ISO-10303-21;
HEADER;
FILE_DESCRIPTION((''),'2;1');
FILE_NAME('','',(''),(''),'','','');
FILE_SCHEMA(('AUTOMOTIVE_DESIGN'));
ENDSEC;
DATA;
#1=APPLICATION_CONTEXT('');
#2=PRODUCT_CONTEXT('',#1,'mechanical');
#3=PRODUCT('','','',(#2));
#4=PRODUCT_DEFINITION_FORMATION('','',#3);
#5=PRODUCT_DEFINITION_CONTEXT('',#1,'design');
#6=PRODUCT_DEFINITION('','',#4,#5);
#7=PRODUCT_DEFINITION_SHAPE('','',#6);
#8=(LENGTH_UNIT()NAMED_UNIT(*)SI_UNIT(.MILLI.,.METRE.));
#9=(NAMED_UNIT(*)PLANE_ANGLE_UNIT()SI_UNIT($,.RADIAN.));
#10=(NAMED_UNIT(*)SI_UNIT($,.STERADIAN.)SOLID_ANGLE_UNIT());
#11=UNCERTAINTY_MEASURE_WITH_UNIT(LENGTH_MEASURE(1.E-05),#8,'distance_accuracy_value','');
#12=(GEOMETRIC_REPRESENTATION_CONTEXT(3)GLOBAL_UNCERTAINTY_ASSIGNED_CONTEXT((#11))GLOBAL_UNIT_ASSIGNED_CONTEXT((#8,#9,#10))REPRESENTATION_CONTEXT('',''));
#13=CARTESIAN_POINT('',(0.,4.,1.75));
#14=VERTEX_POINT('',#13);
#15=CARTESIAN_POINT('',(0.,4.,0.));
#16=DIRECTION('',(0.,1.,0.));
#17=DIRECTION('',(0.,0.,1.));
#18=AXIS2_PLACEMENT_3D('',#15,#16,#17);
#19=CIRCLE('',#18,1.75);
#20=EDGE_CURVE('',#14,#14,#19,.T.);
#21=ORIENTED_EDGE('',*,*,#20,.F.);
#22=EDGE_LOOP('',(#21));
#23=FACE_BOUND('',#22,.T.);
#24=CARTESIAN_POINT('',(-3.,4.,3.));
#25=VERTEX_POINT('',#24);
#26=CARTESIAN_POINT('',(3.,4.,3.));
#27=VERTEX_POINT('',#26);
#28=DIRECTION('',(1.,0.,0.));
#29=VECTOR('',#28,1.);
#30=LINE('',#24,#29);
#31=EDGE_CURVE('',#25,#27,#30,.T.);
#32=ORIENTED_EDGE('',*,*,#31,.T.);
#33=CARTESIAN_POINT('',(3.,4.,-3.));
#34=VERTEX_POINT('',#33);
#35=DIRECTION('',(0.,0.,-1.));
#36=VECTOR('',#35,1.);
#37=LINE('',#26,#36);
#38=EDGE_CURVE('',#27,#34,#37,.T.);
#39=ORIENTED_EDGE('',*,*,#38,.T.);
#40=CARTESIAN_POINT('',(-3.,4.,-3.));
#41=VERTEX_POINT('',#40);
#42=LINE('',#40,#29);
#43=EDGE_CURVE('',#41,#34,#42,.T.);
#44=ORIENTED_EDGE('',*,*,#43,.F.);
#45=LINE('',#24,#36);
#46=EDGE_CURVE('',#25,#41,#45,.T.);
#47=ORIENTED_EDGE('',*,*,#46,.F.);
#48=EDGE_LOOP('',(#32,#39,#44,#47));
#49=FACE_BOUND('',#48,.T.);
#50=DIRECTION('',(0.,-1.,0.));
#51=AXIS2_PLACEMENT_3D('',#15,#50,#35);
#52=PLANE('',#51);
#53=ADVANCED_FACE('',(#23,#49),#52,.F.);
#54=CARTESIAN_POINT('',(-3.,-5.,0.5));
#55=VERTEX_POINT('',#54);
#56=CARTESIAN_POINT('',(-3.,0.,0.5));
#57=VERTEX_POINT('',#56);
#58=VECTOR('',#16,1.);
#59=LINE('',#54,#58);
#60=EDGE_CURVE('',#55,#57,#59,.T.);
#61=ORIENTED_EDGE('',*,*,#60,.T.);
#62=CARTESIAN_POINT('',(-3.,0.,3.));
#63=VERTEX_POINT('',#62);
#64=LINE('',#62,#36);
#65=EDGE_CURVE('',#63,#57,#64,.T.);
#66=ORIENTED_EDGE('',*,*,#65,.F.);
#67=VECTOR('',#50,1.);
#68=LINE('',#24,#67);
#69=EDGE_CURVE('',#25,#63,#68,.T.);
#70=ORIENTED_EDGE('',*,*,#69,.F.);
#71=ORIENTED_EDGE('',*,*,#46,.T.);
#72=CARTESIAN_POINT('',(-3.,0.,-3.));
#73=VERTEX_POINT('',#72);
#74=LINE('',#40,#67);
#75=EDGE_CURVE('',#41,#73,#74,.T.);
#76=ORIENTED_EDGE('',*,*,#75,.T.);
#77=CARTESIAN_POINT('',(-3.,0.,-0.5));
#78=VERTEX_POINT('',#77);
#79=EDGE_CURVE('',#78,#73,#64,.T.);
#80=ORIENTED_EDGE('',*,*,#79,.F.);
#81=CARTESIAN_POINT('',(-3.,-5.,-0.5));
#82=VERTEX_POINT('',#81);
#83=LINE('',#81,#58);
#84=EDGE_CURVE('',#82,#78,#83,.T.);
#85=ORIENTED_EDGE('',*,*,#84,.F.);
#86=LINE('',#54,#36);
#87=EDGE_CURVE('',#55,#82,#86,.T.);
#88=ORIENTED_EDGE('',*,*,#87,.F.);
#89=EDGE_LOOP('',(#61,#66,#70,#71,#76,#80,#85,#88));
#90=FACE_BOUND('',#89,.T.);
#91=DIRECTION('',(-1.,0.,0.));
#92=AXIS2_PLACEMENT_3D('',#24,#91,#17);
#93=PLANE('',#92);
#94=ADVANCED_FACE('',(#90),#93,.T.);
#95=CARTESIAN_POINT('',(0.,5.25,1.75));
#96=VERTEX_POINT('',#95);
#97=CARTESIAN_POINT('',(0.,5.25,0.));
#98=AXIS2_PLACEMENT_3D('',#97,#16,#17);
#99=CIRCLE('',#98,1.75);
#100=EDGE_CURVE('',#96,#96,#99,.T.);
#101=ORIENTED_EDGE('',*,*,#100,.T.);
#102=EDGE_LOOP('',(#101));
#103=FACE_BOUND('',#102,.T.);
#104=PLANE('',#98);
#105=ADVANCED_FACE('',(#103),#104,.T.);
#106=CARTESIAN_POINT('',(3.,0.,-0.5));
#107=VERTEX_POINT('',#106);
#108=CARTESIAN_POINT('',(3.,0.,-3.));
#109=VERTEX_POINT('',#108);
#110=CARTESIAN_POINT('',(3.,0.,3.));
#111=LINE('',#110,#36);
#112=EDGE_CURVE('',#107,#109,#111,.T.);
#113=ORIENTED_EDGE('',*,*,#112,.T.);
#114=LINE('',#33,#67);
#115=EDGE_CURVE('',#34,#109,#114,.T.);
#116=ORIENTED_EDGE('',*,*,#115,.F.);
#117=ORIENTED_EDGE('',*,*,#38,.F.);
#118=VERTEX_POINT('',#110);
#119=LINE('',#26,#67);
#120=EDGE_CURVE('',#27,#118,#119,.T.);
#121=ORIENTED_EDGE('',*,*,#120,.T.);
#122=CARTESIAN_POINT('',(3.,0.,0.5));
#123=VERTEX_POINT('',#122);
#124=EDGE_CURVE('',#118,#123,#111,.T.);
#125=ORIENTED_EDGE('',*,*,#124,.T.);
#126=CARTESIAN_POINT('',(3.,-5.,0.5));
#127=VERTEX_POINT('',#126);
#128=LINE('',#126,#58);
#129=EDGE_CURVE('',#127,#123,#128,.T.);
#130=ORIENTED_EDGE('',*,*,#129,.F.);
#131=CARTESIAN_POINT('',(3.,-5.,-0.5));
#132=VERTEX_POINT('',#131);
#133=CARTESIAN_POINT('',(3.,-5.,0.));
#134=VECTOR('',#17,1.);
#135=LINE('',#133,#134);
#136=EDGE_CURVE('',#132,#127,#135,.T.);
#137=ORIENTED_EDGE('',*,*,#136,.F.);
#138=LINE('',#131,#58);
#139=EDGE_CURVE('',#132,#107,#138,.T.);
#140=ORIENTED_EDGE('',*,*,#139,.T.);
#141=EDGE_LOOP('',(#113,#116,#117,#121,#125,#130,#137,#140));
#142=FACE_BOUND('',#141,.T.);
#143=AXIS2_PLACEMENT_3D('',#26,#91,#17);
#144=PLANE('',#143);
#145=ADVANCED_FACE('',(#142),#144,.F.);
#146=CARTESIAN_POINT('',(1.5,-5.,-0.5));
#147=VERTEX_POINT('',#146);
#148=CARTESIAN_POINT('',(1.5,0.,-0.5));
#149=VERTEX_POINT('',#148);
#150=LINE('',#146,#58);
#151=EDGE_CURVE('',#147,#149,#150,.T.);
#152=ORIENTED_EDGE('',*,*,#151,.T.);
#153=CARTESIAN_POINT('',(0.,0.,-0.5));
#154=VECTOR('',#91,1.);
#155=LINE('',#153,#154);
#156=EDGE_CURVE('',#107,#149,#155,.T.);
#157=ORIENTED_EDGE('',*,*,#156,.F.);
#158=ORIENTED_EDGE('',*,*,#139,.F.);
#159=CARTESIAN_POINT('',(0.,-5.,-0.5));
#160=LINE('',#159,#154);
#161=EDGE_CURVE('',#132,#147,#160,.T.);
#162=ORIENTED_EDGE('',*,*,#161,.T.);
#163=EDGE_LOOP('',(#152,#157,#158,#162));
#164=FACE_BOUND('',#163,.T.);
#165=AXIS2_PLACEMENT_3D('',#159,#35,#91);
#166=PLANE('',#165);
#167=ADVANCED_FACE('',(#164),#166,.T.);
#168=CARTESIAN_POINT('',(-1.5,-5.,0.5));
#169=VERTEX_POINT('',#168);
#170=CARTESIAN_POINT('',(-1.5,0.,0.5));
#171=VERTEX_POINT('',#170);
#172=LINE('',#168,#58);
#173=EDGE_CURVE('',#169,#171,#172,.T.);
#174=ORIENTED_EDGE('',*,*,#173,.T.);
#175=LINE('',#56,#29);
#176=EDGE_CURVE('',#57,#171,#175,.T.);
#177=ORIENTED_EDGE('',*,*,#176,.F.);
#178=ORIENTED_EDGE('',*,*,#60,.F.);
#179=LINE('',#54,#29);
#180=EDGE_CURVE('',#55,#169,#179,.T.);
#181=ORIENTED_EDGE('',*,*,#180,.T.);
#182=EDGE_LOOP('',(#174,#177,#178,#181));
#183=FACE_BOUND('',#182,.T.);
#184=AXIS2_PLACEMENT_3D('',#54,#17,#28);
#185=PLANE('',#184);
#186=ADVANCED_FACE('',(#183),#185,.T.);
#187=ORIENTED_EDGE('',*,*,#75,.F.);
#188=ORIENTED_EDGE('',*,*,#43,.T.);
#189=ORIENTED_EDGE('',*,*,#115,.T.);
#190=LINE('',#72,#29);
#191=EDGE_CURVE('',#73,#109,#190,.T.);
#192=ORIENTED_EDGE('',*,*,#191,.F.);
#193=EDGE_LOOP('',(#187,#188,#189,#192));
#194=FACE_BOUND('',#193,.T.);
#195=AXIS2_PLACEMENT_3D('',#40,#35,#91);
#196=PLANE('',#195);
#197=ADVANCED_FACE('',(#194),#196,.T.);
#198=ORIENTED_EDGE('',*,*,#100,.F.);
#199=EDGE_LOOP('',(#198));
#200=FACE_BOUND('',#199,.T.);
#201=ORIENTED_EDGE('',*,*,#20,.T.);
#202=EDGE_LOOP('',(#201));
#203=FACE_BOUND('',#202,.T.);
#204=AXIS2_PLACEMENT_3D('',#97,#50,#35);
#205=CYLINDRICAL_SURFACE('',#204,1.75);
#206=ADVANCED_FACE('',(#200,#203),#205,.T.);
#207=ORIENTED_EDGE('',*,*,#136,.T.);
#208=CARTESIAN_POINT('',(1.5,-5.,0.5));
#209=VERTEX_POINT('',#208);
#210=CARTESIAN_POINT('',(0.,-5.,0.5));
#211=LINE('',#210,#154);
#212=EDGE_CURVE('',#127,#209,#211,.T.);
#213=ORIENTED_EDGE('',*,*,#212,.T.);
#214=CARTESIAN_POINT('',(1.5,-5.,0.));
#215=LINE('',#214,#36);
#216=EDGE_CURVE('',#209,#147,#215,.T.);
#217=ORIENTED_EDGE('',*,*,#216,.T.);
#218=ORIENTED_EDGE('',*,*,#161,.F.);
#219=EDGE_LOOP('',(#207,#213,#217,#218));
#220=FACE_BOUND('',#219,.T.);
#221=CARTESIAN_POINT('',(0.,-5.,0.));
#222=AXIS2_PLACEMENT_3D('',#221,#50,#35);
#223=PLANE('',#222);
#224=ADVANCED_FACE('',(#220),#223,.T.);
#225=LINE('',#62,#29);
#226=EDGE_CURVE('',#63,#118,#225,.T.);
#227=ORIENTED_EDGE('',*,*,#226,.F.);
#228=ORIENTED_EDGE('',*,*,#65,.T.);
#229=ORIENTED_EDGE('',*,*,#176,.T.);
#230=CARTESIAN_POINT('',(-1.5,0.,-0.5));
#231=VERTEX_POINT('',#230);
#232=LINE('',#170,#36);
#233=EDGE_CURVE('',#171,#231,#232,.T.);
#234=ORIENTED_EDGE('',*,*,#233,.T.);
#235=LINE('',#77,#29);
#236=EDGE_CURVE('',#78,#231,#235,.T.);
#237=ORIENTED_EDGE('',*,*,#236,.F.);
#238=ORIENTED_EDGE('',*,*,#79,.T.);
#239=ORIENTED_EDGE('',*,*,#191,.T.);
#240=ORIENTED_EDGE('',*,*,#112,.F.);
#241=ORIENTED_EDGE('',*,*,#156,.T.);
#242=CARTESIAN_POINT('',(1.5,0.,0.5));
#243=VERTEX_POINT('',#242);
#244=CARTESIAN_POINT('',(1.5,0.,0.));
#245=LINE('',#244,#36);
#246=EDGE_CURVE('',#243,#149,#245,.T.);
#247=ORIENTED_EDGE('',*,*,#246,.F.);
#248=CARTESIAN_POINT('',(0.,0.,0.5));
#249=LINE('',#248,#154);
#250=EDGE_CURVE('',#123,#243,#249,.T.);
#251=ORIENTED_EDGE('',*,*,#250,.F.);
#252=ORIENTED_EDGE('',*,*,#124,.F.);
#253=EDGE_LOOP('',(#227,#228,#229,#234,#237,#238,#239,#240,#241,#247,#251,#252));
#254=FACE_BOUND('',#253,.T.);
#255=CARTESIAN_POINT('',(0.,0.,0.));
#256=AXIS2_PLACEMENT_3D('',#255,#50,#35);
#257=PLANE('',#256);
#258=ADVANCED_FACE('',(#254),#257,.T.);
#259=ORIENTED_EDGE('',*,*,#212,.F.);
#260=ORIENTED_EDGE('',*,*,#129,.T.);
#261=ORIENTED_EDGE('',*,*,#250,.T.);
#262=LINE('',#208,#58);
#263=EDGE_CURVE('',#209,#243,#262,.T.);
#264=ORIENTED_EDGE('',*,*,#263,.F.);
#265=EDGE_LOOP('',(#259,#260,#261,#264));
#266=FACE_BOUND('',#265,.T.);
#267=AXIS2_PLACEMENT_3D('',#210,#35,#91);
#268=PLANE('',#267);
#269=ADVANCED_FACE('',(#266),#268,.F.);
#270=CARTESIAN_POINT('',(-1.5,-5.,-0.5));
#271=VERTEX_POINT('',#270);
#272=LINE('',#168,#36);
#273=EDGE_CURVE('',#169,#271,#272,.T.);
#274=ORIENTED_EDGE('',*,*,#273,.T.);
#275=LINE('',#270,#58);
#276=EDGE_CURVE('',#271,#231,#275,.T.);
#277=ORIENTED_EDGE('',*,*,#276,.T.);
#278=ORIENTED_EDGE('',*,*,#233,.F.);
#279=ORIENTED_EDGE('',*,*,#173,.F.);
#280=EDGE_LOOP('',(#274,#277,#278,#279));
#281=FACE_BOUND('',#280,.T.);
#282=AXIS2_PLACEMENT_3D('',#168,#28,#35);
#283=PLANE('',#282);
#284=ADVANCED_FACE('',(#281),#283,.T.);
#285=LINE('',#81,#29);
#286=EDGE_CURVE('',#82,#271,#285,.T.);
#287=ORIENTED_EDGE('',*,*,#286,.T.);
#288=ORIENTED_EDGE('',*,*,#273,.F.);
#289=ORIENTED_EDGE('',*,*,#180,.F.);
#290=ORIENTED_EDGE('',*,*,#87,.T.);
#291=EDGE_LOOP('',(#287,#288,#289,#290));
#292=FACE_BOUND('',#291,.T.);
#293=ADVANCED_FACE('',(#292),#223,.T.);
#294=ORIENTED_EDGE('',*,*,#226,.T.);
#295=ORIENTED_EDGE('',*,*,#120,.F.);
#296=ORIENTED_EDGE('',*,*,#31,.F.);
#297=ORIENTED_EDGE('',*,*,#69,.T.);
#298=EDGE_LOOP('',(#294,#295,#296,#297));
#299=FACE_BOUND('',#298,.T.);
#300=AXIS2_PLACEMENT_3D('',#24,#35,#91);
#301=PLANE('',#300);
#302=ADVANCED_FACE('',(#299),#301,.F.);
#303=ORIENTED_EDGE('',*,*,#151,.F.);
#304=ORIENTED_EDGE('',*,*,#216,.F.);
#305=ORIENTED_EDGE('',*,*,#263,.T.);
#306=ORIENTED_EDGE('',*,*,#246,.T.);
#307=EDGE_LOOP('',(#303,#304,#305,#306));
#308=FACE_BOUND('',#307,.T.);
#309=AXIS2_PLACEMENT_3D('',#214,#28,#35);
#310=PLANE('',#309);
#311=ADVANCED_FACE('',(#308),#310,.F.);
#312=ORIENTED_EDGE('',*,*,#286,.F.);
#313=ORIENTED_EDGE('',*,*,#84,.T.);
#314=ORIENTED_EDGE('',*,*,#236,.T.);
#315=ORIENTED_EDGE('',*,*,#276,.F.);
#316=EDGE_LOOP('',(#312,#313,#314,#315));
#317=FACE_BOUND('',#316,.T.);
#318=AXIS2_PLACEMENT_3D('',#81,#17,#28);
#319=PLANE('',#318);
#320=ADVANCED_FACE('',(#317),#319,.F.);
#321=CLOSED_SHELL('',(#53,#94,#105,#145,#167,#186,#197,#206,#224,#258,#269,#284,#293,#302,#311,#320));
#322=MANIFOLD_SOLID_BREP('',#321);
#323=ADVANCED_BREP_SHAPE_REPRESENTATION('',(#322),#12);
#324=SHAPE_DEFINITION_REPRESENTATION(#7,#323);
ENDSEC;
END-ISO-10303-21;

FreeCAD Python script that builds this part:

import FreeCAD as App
import Part
import Sketcher
from FreeCAD import Vector


def add_polygon(sketch, points):
    """Adds a closed chain of lines whose ends are joined by coincident constraints."""
    first, n = sketch.GeometryCount, len(points)
    for a, b in zip(points, points[1:] + points[:1]):
        sketch.addGeometry(Part.LineSegment(App.Vector(*a, 0), App.Vector(*b, 0)), False)
    for i in range(n):
        sketch.addConstraint(Sketcher.Constraint("Coincident", first + i, 2, first + (i + 1) % n, 1))

doc = App.newDocument("Part")
params = doc.addObject("Spreadsheet::Sheet", "Params")
for row, (alias, value) in enumerate([
    ("sketch1_width", "6 mm"),
    ("pad1_length", "4 mm"),
    ("sketch2_diameter", "3.5 mm"),
    ("pad2_length", "1.25 mm"),
    ("sketch3_height", "1 mm"),
    ("sketch3_width", "1.5 mm"),
    ("pad3_length", "5 mm"),
], start=1):
    params.set(f"A{row}", alias)
    params.set(f"B{row}", "=" + value)
    params.setAlias(f"B{row}", alias)

body = doc.addObject("PartDesign::Body", "Body")

sketch1 = body.newObject("Sketcher::SketchObject", "Sketch")
sketch1.AttachmentSupport = (doc.getObject("XZ_Plane"), [""])
sketch1.MapMode = "FlatFace"
add_polygon(sketch1, [(-3, -3), (-3, 3), (3, 3), (3, -3)])
sketch1.addConstraint([
    Sketcher.Constraint("Vertical", 0),
    Sketcher.Constraint("Horizontal", 1),
    Sketcher.Constraint("Vertical", 2),
    Sketcher.Constraint("Horizontal", 3),
    Sketcher.Constraint("Symmetric", 0, 2, 2, 2, -1, 1),
    Sketcher.Constraint("Equal", 3, 0),
    Sketcher.Constraint("DistanceX", 1, 1, 1, 2, 6.0),
])
sketch1.setExpression("Constraints[10]", "Params.sketch1_width")
pad1 = body.newObject("PartDesign::Pad", "Pad")
pad1.Profile = sketch1
pad1.setExpression("Length", "Params.pad1_length")
pad1.Reversed = True

sketch2 = body.newObject("Sketcher::SketchObject", "Sketch001")
sketch2.AttachmentSupport = (doc.getObject("XZ_Plane"), [""])
sketch2.MapMode = "FlatFace"
sketch2.AttachmentOffset = App.Placement(Vector(0, 0, -4), App.Rotation())
sketch2.addGeometry(Part.Circle(Vector(0, 0, 0), Vector(0, 0, 1), 1.8), False)
sketch2.addConstraint([
    Sketcher.Constraint("Coincident", 0, 3, -1, 1),
    Sketcher.Constraint("Diameter", 0, 3.5),
])
sketch2.setExpression("Constraints[1]", "Params.sketch2_diameter")
pad2 = body.newObject("PartDesign::Pad", "Pad001")
pad2.Profile = sketch2
pad2.setExpression("Length", "Params.pad2_length")
pad2.Reversed = True

sketch3 = body.newObject("Sketcher::SketchObject", "Sketch002")
sketch3.AttachmentSupport = (doc.getObject("XZ_Plane"), [""])
sketch3.MapMode = "FlatFace"
add_polygon(sketch3, [(1.5, 0.5), (1.5, -0.5), (3, -0.5), (3, 0.5)])
add_polygon(sketch3, [(-3, 0.5), (-3, -0.5), (-1.5, -0.5), (-1.5, 0.5)])
sketch3.addConstraint([
    Sketcher.Constraint("Vertical", 0),
    Sketcher.Constraint("Horizontal", 1),
    Sketcher.Constraint("Vertical", 2),
    Sketcher.Constraint("Horizontal", 3),
    Sketcher.Constraint("Vertical", 4),
    Sketcher.Constraint("Horizontal", 5),
    Sketcher.Constraint("Vertical", 6),
    Sketcher.Constraint("Horizontal", 7),
    Sketcher.Constraint("Symmetric", 2, 2, 4, 2, -1, 1),
    Sketcher.Constraint("Symmetric", 0, 2, 6, 2, -1, 1),
    Sketcher.Constraint("Horizontal", 1, 2, 4, 2),
    Sketcher.Constraint("DistanceY", 0, 2, 0, 1, 1.0),
    Sketcher.Constraint("DistanceX", 1, 1, 1, 2, 1.5),
    Sketcher.Constraint("DistanceX", -1, 1, 1, 2, 3.0),
])
sketch3.setExpression("Constraints[19]", "Params.sketch3_height")
sketch3.setExpression("Constraints[20]", "Params.sketch3_width")
pad3 = body.newObject("PartDesign::Pad", "Pad002")
pad3.Profile = sketch3
pad3.setExpression("Length", "Params.pad3_length")

doc.recompute()
